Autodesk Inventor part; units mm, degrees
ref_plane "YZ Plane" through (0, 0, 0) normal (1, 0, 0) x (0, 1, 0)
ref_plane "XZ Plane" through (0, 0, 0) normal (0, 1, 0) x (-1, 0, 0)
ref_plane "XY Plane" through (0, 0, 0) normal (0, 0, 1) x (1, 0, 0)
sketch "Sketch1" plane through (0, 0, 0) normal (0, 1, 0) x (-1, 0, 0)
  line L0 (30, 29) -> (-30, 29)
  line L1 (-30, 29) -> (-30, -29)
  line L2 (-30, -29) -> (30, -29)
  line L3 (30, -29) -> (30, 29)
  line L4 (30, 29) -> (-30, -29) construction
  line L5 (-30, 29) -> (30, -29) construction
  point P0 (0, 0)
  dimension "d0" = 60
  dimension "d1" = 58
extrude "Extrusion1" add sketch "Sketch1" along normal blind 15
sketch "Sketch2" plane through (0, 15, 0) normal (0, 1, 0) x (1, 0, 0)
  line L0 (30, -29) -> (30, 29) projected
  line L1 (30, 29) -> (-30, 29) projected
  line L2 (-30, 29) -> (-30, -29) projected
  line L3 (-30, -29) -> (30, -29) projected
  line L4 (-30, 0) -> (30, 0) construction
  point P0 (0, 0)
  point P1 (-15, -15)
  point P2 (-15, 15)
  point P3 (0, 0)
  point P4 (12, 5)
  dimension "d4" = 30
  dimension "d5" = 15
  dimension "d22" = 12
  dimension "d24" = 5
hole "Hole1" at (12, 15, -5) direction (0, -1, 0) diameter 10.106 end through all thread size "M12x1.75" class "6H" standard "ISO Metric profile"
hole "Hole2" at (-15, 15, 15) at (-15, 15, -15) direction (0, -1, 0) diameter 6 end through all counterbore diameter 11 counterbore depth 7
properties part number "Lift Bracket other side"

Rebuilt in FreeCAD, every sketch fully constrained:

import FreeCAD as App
import Part
import Sketcher
from FreeCAD import Vector


def add_polygon(sketch, points):
    """Adds a closed chain of lines whose ends are joined by coincident constraints."""
    first, n = sketch.GeometryCount, len(points)
    for a, b in zip(points, points[1:] + points[:1]):
        sketch.addGeometry(Part.LineSegment(App.Vector(*a, 0), App.Vector(*b, 0)), False)
    for i in range(n):
        sketch.addConstraint(Sketcher.Constraint("Coincident", first + i, 2, first + (i + 1) % n, 1))

doc = App.newDocument("Part")
body = doc.addObject("PartDesign::Body", "Body")

# Sketch on XZ plane
sketch1 = body.newObject("Sketcher::SketchObject", "Sketch")
sketch1.AttachmentSupport = (doc.getObject("XZ_Plane"), [""])
sketch1.MapMode = "FlatFace"
add_polygon(sketch1, [(-30, -29), (-30, 29), (30, 29), (30, -29)])  # lines 0-3
sketch1.addConstraint(Sketcher.Constraint("Vertical", 0))
sketch1.addConstraint(Sketcher.Constraint("Horizontal", 1))
sketch1.addConstraint(Sketcher.Constraint("Vertical", 2))
sketch1.addConstraint(Sketcher.Constraint("Horizontal", 3))
sketch1.addConstraint(Sketcher.Constraint("Symmetric", 0, 2, 2, 2, -1, 1))
sketch1.addConstraint(Sketcher.Constraint("DistanceX", 1, 1, 1, 2, 60.0))
sketch1.addConstraint(Sketcher.Constraint("DistanceY", 0, 1, 0, 2, 58.0))
pad1 = body.newObject("PartDesign::Pad", "Pad")
pad1.Profile = sketch1
pad1.Length = 15
pad1.Reversed = True

# Sketch on XZ plane
sketch2 = body.newObject("Sketcher::SketchObject", "Sketch001")
sketch2.AttachmentSupport = (doc.getObject("XZ_Plane"), [""])
sketch2.MapMode = "FlatFace"
sketch2.AttachmentOffset = App.Placement(Vector(0, 0, -15), App.Rotation())
sketch2.addGeometry(Part.Circle(Vector(12, -5, 0), Vector(0, 0, 1), 5), False)
sketch2.addConstraint(Sketcher.Constraint("Diameter", 0, 10.106))
sketch2.addConstraint(Sketcher.Constraint("DistanceX", -1, 1, 0, 3, 12.0))
sketch2.addConstraint(Sketcher.Constraint("DistanceY", 0, 3, -1, 1, 5.0))
doc.recompute()
hole = body.newObject("PartDesign::Hole", "Hole")
hole.Profile = sketch2
hole.ThreadType = "None"
hole.Diameter = 10.106
hole.DepthType = "ThroughAll"
hole.Reversed = True

# Sketch on XZ plane
sketch3 = body.newObject("Sketcher::SketchObject", "Sketch002")
sketch3.AttachmentSupport = (doc.getObject("XZ_Plane"), [""])
sketch3.MapMode = "FlatFace"
sketch3.AttachmentOffset = App.Placement(Vector(0, 0, -15), App.Rotation())
sketch3.addGeometry(Part.Circle(Vector(-15, 15, 0), Vector(0, 0, 1), 3), False)
sketch3.addGeometry(Part.Circle(Vector(-15, -15, 0), Vector(0, 0, 1), 3), False)
sketch3.addConstraint(Sketcher.Constraint("Equal", 0, 1))
sketch3.addConstraint(Sketcher.Constraint("Symmetric", 0, 3, 1, 3, -1))
sketch3.addConstraint(Sketcher.Constraint("Diameter", 0, 6.0))
sketch3.addConstraint(Sketcher.Constraint("DistanceX", 0, 3, -1, 1, 15.0))
sketch3.addConstraint(Sketcher.Constraint("DistanceY", -1, 1, 0, 3, 15.0))
doc.recompute()
hole2 = body.newObject("PartDesign::Hole", "Hole001")
hole2.Profile = sketch3
hole2.ThreadType = "None"
hole2.Diameter = 6
hole2.DepthType = "ThroughAll"
hole2.HoleCutType = "Counterbore"
hole2.HoleCutDiameter = 11
hole2.HoleCutDepth = 7
hole2.Reversed = True

doc.recompute()
